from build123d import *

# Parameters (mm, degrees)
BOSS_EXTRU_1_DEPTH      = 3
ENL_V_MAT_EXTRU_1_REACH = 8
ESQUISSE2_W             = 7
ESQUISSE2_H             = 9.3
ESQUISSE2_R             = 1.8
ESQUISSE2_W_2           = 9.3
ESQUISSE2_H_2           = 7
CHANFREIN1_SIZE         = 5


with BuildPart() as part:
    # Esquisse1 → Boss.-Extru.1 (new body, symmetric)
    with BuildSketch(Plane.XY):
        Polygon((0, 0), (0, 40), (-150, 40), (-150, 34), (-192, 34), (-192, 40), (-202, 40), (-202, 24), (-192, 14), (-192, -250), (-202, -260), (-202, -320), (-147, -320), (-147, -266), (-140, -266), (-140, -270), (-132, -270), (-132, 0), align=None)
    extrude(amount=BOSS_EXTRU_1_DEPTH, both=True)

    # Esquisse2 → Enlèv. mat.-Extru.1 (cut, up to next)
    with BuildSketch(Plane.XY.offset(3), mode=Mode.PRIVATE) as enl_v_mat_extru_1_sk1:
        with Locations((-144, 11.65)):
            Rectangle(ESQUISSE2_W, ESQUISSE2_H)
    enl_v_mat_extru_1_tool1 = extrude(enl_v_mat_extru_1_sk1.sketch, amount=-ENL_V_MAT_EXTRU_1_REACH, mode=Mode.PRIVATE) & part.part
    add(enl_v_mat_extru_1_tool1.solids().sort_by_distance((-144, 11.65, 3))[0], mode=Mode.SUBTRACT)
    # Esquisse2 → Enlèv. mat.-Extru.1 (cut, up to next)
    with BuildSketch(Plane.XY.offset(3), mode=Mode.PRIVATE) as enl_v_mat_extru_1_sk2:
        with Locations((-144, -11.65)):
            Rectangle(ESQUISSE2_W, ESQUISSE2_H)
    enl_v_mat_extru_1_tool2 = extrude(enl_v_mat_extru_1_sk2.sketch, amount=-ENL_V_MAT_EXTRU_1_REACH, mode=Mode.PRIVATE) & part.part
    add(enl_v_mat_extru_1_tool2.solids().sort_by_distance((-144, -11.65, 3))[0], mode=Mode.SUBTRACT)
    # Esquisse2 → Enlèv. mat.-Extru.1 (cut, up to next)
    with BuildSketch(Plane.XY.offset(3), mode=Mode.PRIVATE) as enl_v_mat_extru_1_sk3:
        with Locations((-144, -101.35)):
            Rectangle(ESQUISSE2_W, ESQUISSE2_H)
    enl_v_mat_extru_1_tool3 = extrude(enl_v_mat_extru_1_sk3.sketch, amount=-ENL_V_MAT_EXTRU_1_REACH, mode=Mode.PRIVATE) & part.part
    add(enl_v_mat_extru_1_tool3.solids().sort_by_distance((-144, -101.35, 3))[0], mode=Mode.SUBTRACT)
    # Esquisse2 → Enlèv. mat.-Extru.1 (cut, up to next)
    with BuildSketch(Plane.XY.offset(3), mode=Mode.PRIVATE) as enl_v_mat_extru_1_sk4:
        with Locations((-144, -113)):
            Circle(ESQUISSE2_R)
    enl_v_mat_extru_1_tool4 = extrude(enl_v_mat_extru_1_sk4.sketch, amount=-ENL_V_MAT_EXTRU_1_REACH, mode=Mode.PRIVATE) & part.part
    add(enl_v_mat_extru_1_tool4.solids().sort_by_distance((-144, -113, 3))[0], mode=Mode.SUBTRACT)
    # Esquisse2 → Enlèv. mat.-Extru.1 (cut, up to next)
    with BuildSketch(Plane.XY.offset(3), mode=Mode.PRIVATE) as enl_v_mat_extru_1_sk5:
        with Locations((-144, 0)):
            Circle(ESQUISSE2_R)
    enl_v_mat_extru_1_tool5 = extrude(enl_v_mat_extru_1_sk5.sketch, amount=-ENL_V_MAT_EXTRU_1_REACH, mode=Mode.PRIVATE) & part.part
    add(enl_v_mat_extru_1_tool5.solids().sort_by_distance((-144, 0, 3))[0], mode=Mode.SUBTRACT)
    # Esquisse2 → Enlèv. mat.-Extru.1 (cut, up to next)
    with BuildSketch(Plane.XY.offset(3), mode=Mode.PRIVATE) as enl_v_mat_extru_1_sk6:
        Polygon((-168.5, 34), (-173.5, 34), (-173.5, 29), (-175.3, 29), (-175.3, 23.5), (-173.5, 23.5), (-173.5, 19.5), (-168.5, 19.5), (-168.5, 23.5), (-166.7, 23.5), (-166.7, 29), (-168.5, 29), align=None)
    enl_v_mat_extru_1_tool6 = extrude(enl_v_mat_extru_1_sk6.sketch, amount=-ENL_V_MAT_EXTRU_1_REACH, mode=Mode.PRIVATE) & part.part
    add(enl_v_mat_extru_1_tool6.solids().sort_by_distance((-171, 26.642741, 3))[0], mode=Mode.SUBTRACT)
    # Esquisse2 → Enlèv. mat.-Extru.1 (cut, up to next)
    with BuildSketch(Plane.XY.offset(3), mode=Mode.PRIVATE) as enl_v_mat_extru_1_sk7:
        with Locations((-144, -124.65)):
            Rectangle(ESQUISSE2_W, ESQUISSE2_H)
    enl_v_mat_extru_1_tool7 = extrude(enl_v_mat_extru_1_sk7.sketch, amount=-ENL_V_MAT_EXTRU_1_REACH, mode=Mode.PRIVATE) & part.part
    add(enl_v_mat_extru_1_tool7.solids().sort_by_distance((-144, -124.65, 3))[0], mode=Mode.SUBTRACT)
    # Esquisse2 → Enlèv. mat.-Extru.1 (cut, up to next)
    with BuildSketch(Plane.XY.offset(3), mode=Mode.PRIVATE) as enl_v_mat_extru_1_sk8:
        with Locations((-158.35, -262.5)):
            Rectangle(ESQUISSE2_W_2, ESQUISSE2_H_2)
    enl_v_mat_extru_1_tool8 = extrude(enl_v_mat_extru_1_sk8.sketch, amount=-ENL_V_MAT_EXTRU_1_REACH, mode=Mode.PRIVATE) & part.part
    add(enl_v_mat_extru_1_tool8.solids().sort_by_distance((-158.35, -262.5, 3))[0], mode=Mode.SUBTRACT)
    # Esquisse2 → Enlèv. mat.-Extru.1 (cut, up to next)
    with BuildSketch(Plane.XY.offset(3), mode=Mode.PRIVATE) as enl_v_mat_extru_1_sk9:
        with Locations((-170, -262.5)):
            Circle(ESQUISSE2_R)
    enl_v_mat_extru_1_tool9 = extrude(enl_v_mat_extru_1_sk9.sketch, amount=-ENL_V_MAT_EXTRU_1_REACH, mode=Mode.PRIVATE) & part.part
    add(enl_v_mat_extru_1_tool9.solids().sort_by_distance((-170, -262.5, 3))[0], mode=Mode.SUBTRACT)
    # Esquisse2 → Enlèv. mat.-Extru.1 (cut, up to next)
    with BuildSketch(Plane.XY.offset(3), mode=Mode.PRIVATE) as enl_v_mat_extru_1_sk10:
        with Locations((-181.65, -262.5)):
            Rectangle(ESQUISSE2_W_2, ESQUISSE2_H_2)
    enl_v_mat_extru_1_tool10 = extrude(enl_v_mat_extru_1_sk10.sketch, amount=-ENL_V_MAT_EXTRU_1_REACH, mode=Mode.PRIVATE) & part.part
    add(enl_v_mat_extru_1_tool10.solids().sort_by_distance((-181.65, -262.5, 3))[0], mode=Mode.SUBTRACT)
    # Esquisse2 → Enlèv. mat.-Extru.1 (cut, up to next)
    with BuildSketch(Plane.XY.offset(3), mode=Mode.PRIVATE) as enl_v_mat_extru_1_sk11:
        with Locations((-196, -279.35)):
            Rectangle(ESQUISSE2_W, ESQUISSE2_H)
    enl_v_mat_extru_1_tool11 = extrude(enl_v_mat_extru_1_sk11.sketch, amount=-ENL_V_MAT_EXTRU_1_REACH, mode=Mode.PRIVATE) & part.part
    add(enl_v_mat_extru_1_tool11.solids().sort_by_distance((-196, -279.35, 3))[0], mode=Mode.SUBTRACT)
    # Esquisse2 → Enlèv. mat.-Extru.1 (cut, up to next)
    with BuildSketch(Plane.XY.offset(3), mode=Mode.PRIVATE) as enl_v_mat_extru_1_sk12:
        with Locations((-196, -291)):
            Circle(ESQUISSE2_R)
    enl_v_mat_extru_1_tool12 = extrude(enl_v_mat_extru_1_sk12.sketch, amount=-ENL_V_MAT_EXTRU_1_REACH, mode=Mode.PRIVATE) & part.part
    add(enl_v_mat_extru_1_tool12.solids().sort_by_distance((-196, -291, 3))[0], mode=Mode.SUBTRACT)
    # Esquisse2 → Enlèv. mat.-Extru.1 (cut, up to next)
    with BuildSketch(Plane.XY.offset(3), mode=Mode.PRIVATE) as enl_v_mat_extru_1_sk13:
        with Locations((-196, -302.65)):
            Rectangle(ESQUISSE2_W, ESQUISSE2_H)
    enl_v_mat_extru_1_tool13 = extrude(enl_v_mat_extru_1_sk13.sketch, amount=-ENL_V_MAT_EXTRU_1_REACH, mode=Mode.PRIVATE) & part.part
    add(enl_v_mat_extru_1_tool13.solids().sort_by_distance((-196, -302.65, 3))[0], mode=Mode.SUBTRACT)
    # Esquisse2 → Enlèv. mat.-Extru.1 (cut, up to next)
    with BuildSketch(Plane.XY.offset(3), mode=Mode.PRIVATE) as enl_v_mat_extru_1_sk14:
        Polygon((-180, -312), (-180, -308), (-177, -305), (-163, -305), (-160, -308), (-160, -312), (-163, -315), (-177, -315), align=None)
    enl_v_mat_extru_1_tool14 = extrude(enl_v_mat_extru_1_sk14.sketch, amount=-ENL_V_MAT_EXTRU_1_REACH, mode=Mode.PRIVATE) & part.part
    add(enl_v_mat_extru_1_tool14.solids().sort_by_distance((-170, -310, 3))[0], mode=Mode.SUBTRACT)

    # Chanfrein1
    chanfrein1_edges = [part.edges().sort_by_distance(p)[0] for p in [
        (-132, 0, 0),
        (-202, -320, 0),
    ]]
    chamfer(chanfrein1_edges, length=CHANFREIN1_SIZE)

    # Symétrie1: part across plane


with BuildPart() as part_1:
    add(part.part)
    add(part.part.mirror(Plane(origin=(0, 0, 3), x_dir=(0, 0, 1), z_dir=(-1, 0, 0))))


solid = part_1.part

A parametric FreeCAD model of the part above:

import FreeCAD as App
import Part
import Sketcher
from FreeCAD import Vector


def edges_at(feature, points):
    """Names of the edges that pass closest to the given points."""
    edges = feature.Shape.Edges
    near = lambda p: min(range(len(edges)), key=lambda i: edges[i].distToShape(Part.Vertex(*p))[0])
    return sorted({f"Edge{near(p) + 1}" for p in points})


def add_polygon(sketch, points):
    """Adds a closed chain of lines whose ends are joined by coincident constraints."""
    first, n = sketch.GeometryCount, len(points)
    for a, b in zip(points, points[1:] + points[:1]):
        sketch.addGeometry(Part.LineSegment(App.Vector(*a, 0), App.Vector(*b, 0)), False)
    for i in range(n):
        sketch.addConstraint(Sketcher.Constraint("Coincident", first + i, 2, first + (i + 1) % n, 1))

doc = App.newDocument("Part")
body = doc.addObject("PartDesign::Body", "Body")

# Sketch on XY plane
sketch1 = body.newObject("Sketcher::SketchObject", "Sketch")
sketch1.AttachmentSupport = (doc.getObject("XY_Plane"), [""])
sketch1.MapMode = "FlatFace"
add_polygon(sketch1, [(0, 0), (0, 40), (-150, 40), (-150, 34), (-192, 34), (-192, 40), (-202, 40), (-202, 24), (-192, 14), (-192, -250), (-202, -260), (-202, -320), (-147, -320), (-147, -266), (-140, -266), (-140, -270), (-132, -270), (-132, 0)])  # lines 0-17
sketch1.addConstraint([
    Sketcher.Constraint("Vertical", 0),
    Sketcher.Constraint("Horizontal", 1),
    Sketcher.Constraint("Vertical", 2),
    Sketcher.Constraint("Horizontal", 3),
    Sketcher.Constraint("Vertical", 4),
    Sketcher.Constraint("Horizontal", 5),
    Sketcher.Constraint("Vertical", 6),
    Sketcher.Constraint("Vertical", 8),
    Sketcher.Constraint("Vertical", 10),
    Sketcher.Constraint("Horizontal", 11),
    Sketcher.Constraint("Vertical", 12),
    Sketcher.Constraint("Horizontal", 13),
    Sketcher.Constraint("Vertical", 14),
    Sketcher.Constraint("Horizontal", 15),
    Sketcher.Constraint("Vertical", 16),
    Sketcher.Constraint("Horizontal", 17),
    Sketcher.Constraint("Coincident", 17, 2, -1, 1),
    Sketcher.Constraint("Perpendicular", 7, 9),
    Sketcher.Constraint("Horizontal", 1, 2, 4, 2),
    Sketcher.Constraint("Vertical", 4, 2, 7, 2),
    Sketcher.Constraint("Vertical", 6, 2, 9, 2),
    Sketcher.Constraint("Equal", 7, 9),
    Sketcher.Constraint("DistanceX", 1, 2, 1, 1, 150.0),
    Sketcher.Constraint("DistanceX", 3, 2, 3, 1, 42.0),
    Sketcher.Constraint("DistanceX", 5, 2, 5, 1, 10.0),
    Sketcher.Constraint("DistanceX", 11, 1, 11, 2, 55.0),
    Sketcher.Constraint("DistanceX", 13, 1, 13, 2, 7.0),
    Sketcher.Constraint("DistanceX", 15, 1, 15, 2, 8.0),
    Sketcher.Constraint("DistanceY", 0, 1, 0, 2, 40.0),
    Sketcher.Constraint("DistanceY", 2, 2, 2, 1, 6.0),
    Sketcher.Constraint("DistanceY", 6, 2, 6, 1, 16.0),
    Sketcher.Constraint("DistanceY", 8, 2, 8, 1, 264.0),
    Sketcher.Constraint("DistanceY", 10, 2, 10, 1, 60.0),
    Sketcher.Constraint("DistanceY", 12, 1, 12, 2, 54.0),
    Sketcher.Constraint("DistanceY", 14, 2, 14, 1, 4.0),
])
pad1 = body.newObject("PartDesign::Pad", "Pad")
pad1.Profile = sketch1
pad1.Length = 6
pad1.Midplane = True

# Sketch on XY plane
sketch2 = body.newObject("Sketcher::SketchObject", "Sketch001")
sketch2.AttachmentSupport = (doc.getObject("XY_Plane"), [""])
sketch2.MapMode = "FlatFace"
sketch2.AttachmentOffset = App.Placement(Vector(0, 0, 3), App.Rotation())
add_polygon(sketch2, [(-147.5, 16.3), (-147.5, 7), (-140.5, 7), (-140.5, 16.3)])  # lines 0-3
sketch2.addConstraint([
    Sketcher.Constraint("Vertical", 0),
    Sketcher.Constraint("Horizontal", 1),
    Sketcher.Constraint("Vertical", 2),
    Sketcher.Constraint("Horizontal", 3),
    Sketcher.Constraint("DistanceX", 1, 1, 1, 2, 7.0),
    Sketcher.Constraint("DistanceY", 0, 2, 0, 1, 9.3),
    Sketcher.Constraint("DistanceY", -1, 1, 0, 2, 7.0),
    Sketcher.Constraint("DistanceX", 0, 2, -1, 1, 147.5),
])
pocket1 = body.newObject("PartDesign::Pocket", "Pocket")
pocket1.Profile = sketch2
pocket1.Type = "UpToFirst"

# Sketch on XY plane
sketch3 = body.newObject("Sketcher::SketchObject", "Sketch002")
sketch3.AttachmentSupport = (doc.getObject("XY_Plane"), [""])
sketch3.MapMode = "FlatFace"
sketch3.AttachmentOffset = App.Placement(Vector(0, 0, 3), App.Rotation())
add_polygon(sketch3, [(-147.5, -7), (-147.5, -16.3), (-140.5, -16.3), (-140.5, -7)])  # lines 0-3
sketch3.addConstraint([
    Sketcher.Constraint("Vertical", 0),
    Sketcher.Constraint("Horizontal", 1),
    Sketcher.Constraint("Vertical", 2),
    Sketcher.Constraint("Horizontal", 3),
    Sketcher.Constraint("DistanceX", 1, 1, 1, 2, 7.0),
    Sketcher.Constraint("DistanceY", 0, 2, 0, 1, 9.3),
    Sketcher.Constraint("DistanceY", 2, 2, -1, 1, 7.0),
    Sketcher.Constraint("DistanceX", 0, 2, -1, 1, 147.5),
])
pocket2 = body.newObject("PartDesign::Pocket", "Pocket001")
pocket2.Profile = sketch3
pocket2.Type = "UpToFirst"

# Sketch on XY plane
sketch4 = body.newObject("Sketcher::SketchObject", "Sketch003")
sketch4.AttachmentSupport = (doc.getObject("XY_Plane"), [""])
sketch4.MapMode = "FlatFace"
sketch4.AttachmentOffset = App.Placement(Vector(0, 0, 3), App.Rotation())
add_polygon(sketch4, [(-147.5, -96.7), (-147.5, -106), (-140.5, -106), (-140.5, -96.7)])  # lines 0-3
sketch4.addConstraint([
    Sketcher.Constraint("Vertical", 0),
    Sketcher.Constraint("Horizontal", 1),
    Sketcher.Constraint("Vertical", 2),
    Sketcher.Constraint("Horizontal", 3),
    Sketcher.Constraint("DistanceX", 1, 1, 1, 2, 7.0),
    Sketcher.Constraint("DistanceY", 0, 2, 0, 1, 9.3),
    Sketcher.Constraint("DistanceY", 0, 2, -1, 1, 106.0),
    Sketcher.Constraint("DistanceX", 0, 2, -1, 1, 147.5),
])
pocket3 = body.newObject("PartDesign::Pocket", "Pocket002")
pocket3.Profile = sketch4
pocket3.Type = "UpToFirst"

# Sketch on XY plane
sketch5 = body.newObject("Sketcher::SketchObject", "Sketch004")
sketch5.AttachmentSupport = (doc.getObject("XY_Plane"), [""])
sketch5.MapMode = "FlatFace"
sketch5.AttachmentOffset = App.Placement(Vector(0, 0, 3), App.Rotation())
sketch5.addGeometry(Part.Circle(Vector(-144, -113, 0), Vector(0, 0, 1), 1.8), False)
sketch5.addConstraint([
    Sketcher.Constraint("Diameter", 0, 3.6),
    Sketcher.Constraint("DistanceX", 0, 3, -1, 1, 144.0),
    Sketcher.Constraint("DistanceY", 0, 3, -1, 1, 113.0),
])
pocket4 = body.newObject("PartDesign::Pocket", "Pocket003")
pocket4.Profile = sketch5
pocket4.Type = "UpToFirst"

# Sketch on XY plane
sketch6 = body.newObject("Sketcher::SketchObject", "Sketch005")
sketch6.AttachmentSupport = (doc.getObject("XY_Plane"), [""])
sketch6.MapMode = "FlatFace"
sketch6.AttachmentOffset = App.Placement(Vector(0, 0, 3), App.Rotation())
sketch6.addGeometry(Part.Circle(Vector(-144, 0, 0), Vector(0, 0, 1), 1.8), False)
sketch6.addConstraint([
    Sketcher.Constraint("PointOnObject", 0, 3, -1),
    Sketcher.Constraint("Diameter", 0, 3.6),
    Sketcher.Constraint("DistanceX", 0, 3, -1, 1, 144.0),
])
pocket5 = body.newObject("PartDesign::Pocket", "Pocket004")
pocket5.Profile = sketch6
pocket5.Type = "UpToFirst"

# Sketch on XY plane
sketch7 = body.newObject("Sketcher::SketchObject", "Sketch006")
sketch7.AttachmentSupport = (doc.getObject("XY_Plane"), [""])
sketch7.MapMode = "FlatFace"
sketch7.AttachmentOffset = App.Placement(Vector(0, 0, 3), App.Rotation())
add_polygon(sketch7, [(-168.5, 34), (-173.5, 34), (-173.5, 29), (-175.3, 29), (-175.3, 23.5), (-173.5, 23.5), (-173.5, 19.5), (-168.5, 19.5), (-168.5, 23.5), (-166.7, 23.5), (-166.7, 29), (-168.5, 29)])  # lines 0-11
sketch7.addConstraint([
    Sketcher.Constraint("Horizontal", 0),
    Sketcher.Constraint("Vertical", 1),
    Sketcher.Constraint("Horizontal", 2),
    Sketcher.Constraint("Vertical", 3),
    Sketcher.Constraint("Horizontal", 4),
    Sketcher.Constraint("Vertical", 5),
    Sketcher.Constraint("Horizontal", 6),
    Sketcher.Constraint("Vertical", 7),
    Sketcher.Constraint("Horizontal", 8),
    Sketcher.Constraint("Vertical", 9),
    Sketcher.Constraint("Horizontal", 10),
    Sketcher.Constraint("Vertical", 11),
    Sketcher.Constraint("Horizontal", 4, 2, 7, 2),
    Sketcher.Constraint("Horizontal", 2, 2, 9, 2),
    Sketcher.Constraint("Vertical", 1, 2, 4, 2),
    Sketcher.Constraint("Vertical", 7, 2, 10, 2),
    Sketcher.Constraint("Equal", 4, 8),
    Sketcher.Constraint("Equal", 6, 1),
    Sketcher.Constraint("DistanceX", 0, 2, 0, 1, 5.0),
    Sketcher.Constraint("DistanceY", 5, 2, 5, 1, 4.0),
    Sketcher.Constraint("DistanceX", 2, 2, 2, 1, 1.8),
    Sketcher.Constraint("DistanceY", 3, 2, 3, 1, 5.5),
    Sketcher.Constraint("DistanceY", -1, 1, 0, 2, 34.0),
    Sketcher.Constraint("DistanceX", 0, 2, -1, 1, 173.5),
])
pocket6 = body.newObject("PartDesign::Pocket", "Pocket005")
pocket6.Profile = sketch7
pocket6.Type = "UpToFirst"

# Sketch on XY plane
sketch8 = body.newObject("Sketcher::SketchObject", "Sketch007")
sketch8.AttachmentSupport = (doc.getObject("XY_Plane"), [""])
sketch8.MapMode = "FlatFace"
sketch8.AttachmentOffset = App.Placement(Vector(0, 0, 3), App.Rotation())
add_polygon(sketch8, [(-147.5, -120), (-147.5, -129.3), (-140.5, -129.3), (-140.5, -120)])  # lines 0-3
sketch8.addConstraint([
    Sketcher.Constraint("Vertical", 0),
    Sketcher.Constraint("Horizontal", 1),
    Sketcher.Constraint("Vertical", 2),
    Sketcher.Constraint("Horizontal", 3),
    Sketcher.Constraint("DistanceX", 1, 1, 1, 2, 7.0),
    Sketcher.Constraint("DistanceY", 0, 2, 0, 1, 9.3),
    Sketcher.Constraint("DistanceY", 2, 2, -1, 1, 120.0),
    Sketcher.Constraint("DistanceX", 0, 2, -1, 1, 147.5),
])
pocket7 = body.newObject("PartDesign::Pocket", "Pocket006")
pocket7.Profile = sketch8
pocket7.Type = "UpToFirst"

# Sketch on XY plane
sketch9 = body.newObject("Sketcher::SketchObject", "Sketch008")
sketch9.AttachmentSupport = (doc.getObject("XY_Plane"), [""])
sketch9.MapMode = "FlatFace"
sketch9.AttachmentOffset = App.Placement(Vector(0, 0, 3), App.Rotation())
add_polygon(sketch9, [(-163, -259), (-163, -266), (-153.7, -266), (-153.7, -259)])  # lines 0-3
sketch9.addConstraint([
    Sketcher.Constraint("Vertical", 0),
    Sketcher.Constraint("Horizontal", 1),
    Sketcher.Constraint("Vertical", 2),
    Sketcher.Constraint("Horizontal", 3),
    Sketcher.Constraint("DistanceY", 0, 2, 0, 1, 7.0),
    Sketcher.Constraint("DistanceX", 1, 1, 1, 2, 9.3),
    Sketcher.Constraint("DistanceX", 0, 2, -1, 1, 163.0),
    Sketcher.Constraint("DistanceY", 0, 2, -1, 1, 266.0),
])
pocket8 = body.newObject("PartDesign::Pocket", "Pocket007")
pocket8.Profile = sketch9
pocket8.Type = "UpToFirst"

# Sketch on XY plane
sketch10 = body.newObject("Sketcher::SketchObject", "Sketch009")
sketch10.AttachmentSupport = (doc.getObject("XY_Plane"), [""])
sketch10.MapMode = "FlatFace"
sketch10.AttachmentOffset = App.Placement(Vector(0, 0, 3), App.Rotation())
sketch10.addGeometry(Part.Circle(Vector(-170, -262.5, 0), Vector(0, 0, 1), 1.8), False)
sketch10.addConstraint([
    Sketcher.Constraint("Diameter", 0, 3.6),
    Sketcher.Constraint("DistanceX", 0, 3, -1, 1, 170.0),
    Sketcher.Constraint("DistanceY", 0, 3, -1, 1, 262.5),
])
pocket9 = body.newObject("PartDesign::Pocket", "Pocket008")
pocket9.Profile = sketch10
pocket9.Type = "UpToFirst"

# Sketch on XY plane
sketch11 = body.newObject("Sketcher::SketchObject", "Sketch010")
sketch11.AttachmentSupport = (doc.getObject("XY_Plane"), [""])
sketch11.MapMode = "FlatFace"
sketch11.AttachmentOffset = App.Placement(Vector(0, 0, 3), App.Rotation())
add_polygon(sketch11, [(-186.3, -259), (-186.3, -266), (-177, -266), (-177, -259)])  # lines 0-3
sketch11.addConstraint([
    Sketcher.Constraint("Vertical", 0),
    Sketcher.Constraint("Horizontal", 1),
    Sketcher.Constraint("Vertical", 2),
    Sketcher.Constraint("Horizontal", 3),
    Sketcher.Constraint("DistanceY", 0, 2, 0, 1, 7.0),
    Sketcher.Constraint("DistanceX", 1, 1, 1, 2, 9.3),
    Sketcher.Constraint("DistanceY", 0, 2, -1, 1, 266.0),
    Sketcher.Constraint("DistanceX", 1, 2, -1, 1, 177.0),
])
pocket10 = body.newObject("PartDesign::Pocket", "Pocket009")
pocket10.Profile = sketch11
pocket10.Type = "UpToFirst"

# Sketch on XY plane
sketch12 = body.newObject("Sketcher::SketchObject", "Sketch011")
sketch12.AttachmentSupport = (doc.getObject("XY_Plane"), [""])
sketch12.MapMode = "FlatFace"
sketch12.AttachmentOffset = App.Placement(Vector(0, 0, 3), App.Rotation())
add_polygon(sketch12, [(-199.5, -274.7), (-199.5, -284), (-192.5, -284), (-192.5, -274.7)])  # lines 0-3
sketch12.addConstraint([
    Sketcher.Constraint("Vertical", 0),
    Sketcher.Constraint("Horizontal", 1),
    Sketcher.Constraint("Vertical", 2),
    Sketcher.Constraint("Horizontal", 3),
    Sketcher.Constraint("DistanceX", 1, 1, 1, 2, 7.0),
    Sketcher.Constraint("DistanceY", 0, 2, 0, 1, 9.3),
    Sketcher.Constraint("DistanceY", 0, 2, -1, 1, 284.0),
    Sketcher.Constraint("DistanceX", 0, 2, -1, 1, 199.5),
])
pocket11 = body.newObject("PartDesign::Pocket", "Pocket010")
pocket11.Profile = sketch12
pocket11.Type = "UpToFirst"

# Sketch on XY plane
sketch13 = body.newObject("Sketcher::SketchObject", "Sketch012")
sketch13.AttachmentSupport = (doc.getObject("XY_Plane"), [""])
sketch13.MapMode = "FlatFace"
sketch13.AttachmentOffset = App.Placement(Vector(0, 0, 3), App.Rotation())
sketch13.addGeometry(Part.Circle(Vector(-196, -291, 0), Vector(0, 0, 1), 1.8), False)
sketch13.addConstraint([
    Sketcher.Constraint("Diameter", 0, 3.6),
    Sketcher.Constraint("DistanceX", 0, 3, -1, 1, 196.0),
    Sketcher.Constraint("DistanceY", 0, 3, -1, 1, 291.0),
])
pocket12 = body.newObject("PartDesign::Pocket", "Pocket011")
pocket12.Profile = sketch13
pocket12.Type = "UpToFirst"

# Sketch on XY plane
sketch14 = body.newObject("Sketcher::SketchObject", "Sketch013")
sketch14.AttachmentSupport = (doc.getObject("XY_Plane"), [""])
sketch14.MapMode = "FlatFace"
sketch14.AttachmentOffset = App.Placement(Vector(0, 0, 3), App.Rotation())
add_polygon(sketch14, [(-199.5, -298), (-199.5, -307.3), (-192.5, -307.3), (-192.5, -298)])  # lines 0-3
sketch14.addConstraint([
    Sketcher.Constraint("Vertical", 0),
    Sketcher.Constraint("Horizontal", 1),
    Sketcher.Constraint("Vertical", 2),
    Sketcher.Constraint("Horizontal", 3),
    Sketcher.Constraint("DistanceX", 1, 1, 1, 2, 7.0),
    Sketcher.Constraint("DistanceY", 0, 2, 0, 1, 9.3),
    Sketcher.Constraint("DistanceY", 2, 2, -1, 1, 298.0),
    Sketcher.Constraint("DistanceX", 0, 2, -1, 1, 199.5),
])
pocket13 = body.newObject("PartDesign::Pocket", "Pocket012")
pocket13.Profile = sketch14
pocket13.Type = "UpToFirst"

# Sketch on XY plane
sketch15 = body.newObject("Sketcher::SketchObject", "Sketch014")
sketch15.AttachmentSupport = (doc.getObject("XY_Plane"), [""])
sketch15.MapMode = "FlatFace"
sketch15.AttachmentOffset = App.Placement(Vector(0, 0, 3), App.Rotation())
add_polygon(sketch15, [(-180, -308), (-180, -312), (-177, -315), (-163, -315), (-160, -312), (-160, -308), (-163, -305), (-177, -305)])  # lines 0-7
sketch15.addConstraint([
    Sketcher.Constraint("Vertical", 0),
    Sketcher.Constraint("Horizontal", 2),
    Sketcher.Constraint("Vertical", 4),
    Sketcher.Constraint("Horizontal", 6),
    Sketcher.Constraint("Perpendicular", 1, 3),
    Sketcher.Constraint("Perpendicular", 3, 5),
    Sketcher.Constraint("Perpendicular", 5, 7),
    Sketcher.Constraint("Horizontal", 0, 2, 3, 2),
    Sketcher.Constraint("Horizontal", 4, 2, 7, 2),
    Sketcher.Constraint("Vertical", 2, 2, 5, 2),
    Sketcher.Constraint("Vertical", 1, 2, 6, 2),
    Sketcher.Constraint("DistanceX", 2, 1, 2, 2, 14.0),
    Sketcher.Constraint("DistanceY", 0, 2, 0, 1, 4.0),
    Sketcher.Constraint("DistanceX", 0, 2, -1, 1, 180.0),
    Sketcher.Constraint("DistanceY", 0, 2, -1, 1, 312.0),
    Sketcher.Constraint("DistanceX", 1, 2, -1, 1, 177.0),
])
pocket14 = body.newObject("PartDesign::Pocket", "Pocket013")
pocket14.Profile = sketch15
pocket14.Type = "UpToFirst"
doc.recompute()

chamfer = body.newObject("PartDesign::Chamfer", "Chamfer")
chamfer.Base = (pocket14, edges_at(pocket14, [(-132, 0, 0), (-202, -320, 0)]))
chamfer.Size = 5
body2 = doc.addObject("PartDesign::Body", "Body001")
doc.recompute()

body2.BaseFeature = body
doc.recompute()

mirroring = doc.addObject("Part::Mirroring", "Mirroring")
mirroring.Source = body
mirroring.Base = Vector(0, 0, 3)
mirroring.Normal = Vector(-1, 0, 0)
body3 = doc.addObject("PartDesign::Body", "Body002")
body3.BaseFeature = mirroring
boolean = body2.newObject("PartDesign::Boolean", "Boolean")
boolean.Type = "Fuse"
boolean.addObjects([body3])
doc.recompute()
mirroring.Visibility = False

doc.recompute()
